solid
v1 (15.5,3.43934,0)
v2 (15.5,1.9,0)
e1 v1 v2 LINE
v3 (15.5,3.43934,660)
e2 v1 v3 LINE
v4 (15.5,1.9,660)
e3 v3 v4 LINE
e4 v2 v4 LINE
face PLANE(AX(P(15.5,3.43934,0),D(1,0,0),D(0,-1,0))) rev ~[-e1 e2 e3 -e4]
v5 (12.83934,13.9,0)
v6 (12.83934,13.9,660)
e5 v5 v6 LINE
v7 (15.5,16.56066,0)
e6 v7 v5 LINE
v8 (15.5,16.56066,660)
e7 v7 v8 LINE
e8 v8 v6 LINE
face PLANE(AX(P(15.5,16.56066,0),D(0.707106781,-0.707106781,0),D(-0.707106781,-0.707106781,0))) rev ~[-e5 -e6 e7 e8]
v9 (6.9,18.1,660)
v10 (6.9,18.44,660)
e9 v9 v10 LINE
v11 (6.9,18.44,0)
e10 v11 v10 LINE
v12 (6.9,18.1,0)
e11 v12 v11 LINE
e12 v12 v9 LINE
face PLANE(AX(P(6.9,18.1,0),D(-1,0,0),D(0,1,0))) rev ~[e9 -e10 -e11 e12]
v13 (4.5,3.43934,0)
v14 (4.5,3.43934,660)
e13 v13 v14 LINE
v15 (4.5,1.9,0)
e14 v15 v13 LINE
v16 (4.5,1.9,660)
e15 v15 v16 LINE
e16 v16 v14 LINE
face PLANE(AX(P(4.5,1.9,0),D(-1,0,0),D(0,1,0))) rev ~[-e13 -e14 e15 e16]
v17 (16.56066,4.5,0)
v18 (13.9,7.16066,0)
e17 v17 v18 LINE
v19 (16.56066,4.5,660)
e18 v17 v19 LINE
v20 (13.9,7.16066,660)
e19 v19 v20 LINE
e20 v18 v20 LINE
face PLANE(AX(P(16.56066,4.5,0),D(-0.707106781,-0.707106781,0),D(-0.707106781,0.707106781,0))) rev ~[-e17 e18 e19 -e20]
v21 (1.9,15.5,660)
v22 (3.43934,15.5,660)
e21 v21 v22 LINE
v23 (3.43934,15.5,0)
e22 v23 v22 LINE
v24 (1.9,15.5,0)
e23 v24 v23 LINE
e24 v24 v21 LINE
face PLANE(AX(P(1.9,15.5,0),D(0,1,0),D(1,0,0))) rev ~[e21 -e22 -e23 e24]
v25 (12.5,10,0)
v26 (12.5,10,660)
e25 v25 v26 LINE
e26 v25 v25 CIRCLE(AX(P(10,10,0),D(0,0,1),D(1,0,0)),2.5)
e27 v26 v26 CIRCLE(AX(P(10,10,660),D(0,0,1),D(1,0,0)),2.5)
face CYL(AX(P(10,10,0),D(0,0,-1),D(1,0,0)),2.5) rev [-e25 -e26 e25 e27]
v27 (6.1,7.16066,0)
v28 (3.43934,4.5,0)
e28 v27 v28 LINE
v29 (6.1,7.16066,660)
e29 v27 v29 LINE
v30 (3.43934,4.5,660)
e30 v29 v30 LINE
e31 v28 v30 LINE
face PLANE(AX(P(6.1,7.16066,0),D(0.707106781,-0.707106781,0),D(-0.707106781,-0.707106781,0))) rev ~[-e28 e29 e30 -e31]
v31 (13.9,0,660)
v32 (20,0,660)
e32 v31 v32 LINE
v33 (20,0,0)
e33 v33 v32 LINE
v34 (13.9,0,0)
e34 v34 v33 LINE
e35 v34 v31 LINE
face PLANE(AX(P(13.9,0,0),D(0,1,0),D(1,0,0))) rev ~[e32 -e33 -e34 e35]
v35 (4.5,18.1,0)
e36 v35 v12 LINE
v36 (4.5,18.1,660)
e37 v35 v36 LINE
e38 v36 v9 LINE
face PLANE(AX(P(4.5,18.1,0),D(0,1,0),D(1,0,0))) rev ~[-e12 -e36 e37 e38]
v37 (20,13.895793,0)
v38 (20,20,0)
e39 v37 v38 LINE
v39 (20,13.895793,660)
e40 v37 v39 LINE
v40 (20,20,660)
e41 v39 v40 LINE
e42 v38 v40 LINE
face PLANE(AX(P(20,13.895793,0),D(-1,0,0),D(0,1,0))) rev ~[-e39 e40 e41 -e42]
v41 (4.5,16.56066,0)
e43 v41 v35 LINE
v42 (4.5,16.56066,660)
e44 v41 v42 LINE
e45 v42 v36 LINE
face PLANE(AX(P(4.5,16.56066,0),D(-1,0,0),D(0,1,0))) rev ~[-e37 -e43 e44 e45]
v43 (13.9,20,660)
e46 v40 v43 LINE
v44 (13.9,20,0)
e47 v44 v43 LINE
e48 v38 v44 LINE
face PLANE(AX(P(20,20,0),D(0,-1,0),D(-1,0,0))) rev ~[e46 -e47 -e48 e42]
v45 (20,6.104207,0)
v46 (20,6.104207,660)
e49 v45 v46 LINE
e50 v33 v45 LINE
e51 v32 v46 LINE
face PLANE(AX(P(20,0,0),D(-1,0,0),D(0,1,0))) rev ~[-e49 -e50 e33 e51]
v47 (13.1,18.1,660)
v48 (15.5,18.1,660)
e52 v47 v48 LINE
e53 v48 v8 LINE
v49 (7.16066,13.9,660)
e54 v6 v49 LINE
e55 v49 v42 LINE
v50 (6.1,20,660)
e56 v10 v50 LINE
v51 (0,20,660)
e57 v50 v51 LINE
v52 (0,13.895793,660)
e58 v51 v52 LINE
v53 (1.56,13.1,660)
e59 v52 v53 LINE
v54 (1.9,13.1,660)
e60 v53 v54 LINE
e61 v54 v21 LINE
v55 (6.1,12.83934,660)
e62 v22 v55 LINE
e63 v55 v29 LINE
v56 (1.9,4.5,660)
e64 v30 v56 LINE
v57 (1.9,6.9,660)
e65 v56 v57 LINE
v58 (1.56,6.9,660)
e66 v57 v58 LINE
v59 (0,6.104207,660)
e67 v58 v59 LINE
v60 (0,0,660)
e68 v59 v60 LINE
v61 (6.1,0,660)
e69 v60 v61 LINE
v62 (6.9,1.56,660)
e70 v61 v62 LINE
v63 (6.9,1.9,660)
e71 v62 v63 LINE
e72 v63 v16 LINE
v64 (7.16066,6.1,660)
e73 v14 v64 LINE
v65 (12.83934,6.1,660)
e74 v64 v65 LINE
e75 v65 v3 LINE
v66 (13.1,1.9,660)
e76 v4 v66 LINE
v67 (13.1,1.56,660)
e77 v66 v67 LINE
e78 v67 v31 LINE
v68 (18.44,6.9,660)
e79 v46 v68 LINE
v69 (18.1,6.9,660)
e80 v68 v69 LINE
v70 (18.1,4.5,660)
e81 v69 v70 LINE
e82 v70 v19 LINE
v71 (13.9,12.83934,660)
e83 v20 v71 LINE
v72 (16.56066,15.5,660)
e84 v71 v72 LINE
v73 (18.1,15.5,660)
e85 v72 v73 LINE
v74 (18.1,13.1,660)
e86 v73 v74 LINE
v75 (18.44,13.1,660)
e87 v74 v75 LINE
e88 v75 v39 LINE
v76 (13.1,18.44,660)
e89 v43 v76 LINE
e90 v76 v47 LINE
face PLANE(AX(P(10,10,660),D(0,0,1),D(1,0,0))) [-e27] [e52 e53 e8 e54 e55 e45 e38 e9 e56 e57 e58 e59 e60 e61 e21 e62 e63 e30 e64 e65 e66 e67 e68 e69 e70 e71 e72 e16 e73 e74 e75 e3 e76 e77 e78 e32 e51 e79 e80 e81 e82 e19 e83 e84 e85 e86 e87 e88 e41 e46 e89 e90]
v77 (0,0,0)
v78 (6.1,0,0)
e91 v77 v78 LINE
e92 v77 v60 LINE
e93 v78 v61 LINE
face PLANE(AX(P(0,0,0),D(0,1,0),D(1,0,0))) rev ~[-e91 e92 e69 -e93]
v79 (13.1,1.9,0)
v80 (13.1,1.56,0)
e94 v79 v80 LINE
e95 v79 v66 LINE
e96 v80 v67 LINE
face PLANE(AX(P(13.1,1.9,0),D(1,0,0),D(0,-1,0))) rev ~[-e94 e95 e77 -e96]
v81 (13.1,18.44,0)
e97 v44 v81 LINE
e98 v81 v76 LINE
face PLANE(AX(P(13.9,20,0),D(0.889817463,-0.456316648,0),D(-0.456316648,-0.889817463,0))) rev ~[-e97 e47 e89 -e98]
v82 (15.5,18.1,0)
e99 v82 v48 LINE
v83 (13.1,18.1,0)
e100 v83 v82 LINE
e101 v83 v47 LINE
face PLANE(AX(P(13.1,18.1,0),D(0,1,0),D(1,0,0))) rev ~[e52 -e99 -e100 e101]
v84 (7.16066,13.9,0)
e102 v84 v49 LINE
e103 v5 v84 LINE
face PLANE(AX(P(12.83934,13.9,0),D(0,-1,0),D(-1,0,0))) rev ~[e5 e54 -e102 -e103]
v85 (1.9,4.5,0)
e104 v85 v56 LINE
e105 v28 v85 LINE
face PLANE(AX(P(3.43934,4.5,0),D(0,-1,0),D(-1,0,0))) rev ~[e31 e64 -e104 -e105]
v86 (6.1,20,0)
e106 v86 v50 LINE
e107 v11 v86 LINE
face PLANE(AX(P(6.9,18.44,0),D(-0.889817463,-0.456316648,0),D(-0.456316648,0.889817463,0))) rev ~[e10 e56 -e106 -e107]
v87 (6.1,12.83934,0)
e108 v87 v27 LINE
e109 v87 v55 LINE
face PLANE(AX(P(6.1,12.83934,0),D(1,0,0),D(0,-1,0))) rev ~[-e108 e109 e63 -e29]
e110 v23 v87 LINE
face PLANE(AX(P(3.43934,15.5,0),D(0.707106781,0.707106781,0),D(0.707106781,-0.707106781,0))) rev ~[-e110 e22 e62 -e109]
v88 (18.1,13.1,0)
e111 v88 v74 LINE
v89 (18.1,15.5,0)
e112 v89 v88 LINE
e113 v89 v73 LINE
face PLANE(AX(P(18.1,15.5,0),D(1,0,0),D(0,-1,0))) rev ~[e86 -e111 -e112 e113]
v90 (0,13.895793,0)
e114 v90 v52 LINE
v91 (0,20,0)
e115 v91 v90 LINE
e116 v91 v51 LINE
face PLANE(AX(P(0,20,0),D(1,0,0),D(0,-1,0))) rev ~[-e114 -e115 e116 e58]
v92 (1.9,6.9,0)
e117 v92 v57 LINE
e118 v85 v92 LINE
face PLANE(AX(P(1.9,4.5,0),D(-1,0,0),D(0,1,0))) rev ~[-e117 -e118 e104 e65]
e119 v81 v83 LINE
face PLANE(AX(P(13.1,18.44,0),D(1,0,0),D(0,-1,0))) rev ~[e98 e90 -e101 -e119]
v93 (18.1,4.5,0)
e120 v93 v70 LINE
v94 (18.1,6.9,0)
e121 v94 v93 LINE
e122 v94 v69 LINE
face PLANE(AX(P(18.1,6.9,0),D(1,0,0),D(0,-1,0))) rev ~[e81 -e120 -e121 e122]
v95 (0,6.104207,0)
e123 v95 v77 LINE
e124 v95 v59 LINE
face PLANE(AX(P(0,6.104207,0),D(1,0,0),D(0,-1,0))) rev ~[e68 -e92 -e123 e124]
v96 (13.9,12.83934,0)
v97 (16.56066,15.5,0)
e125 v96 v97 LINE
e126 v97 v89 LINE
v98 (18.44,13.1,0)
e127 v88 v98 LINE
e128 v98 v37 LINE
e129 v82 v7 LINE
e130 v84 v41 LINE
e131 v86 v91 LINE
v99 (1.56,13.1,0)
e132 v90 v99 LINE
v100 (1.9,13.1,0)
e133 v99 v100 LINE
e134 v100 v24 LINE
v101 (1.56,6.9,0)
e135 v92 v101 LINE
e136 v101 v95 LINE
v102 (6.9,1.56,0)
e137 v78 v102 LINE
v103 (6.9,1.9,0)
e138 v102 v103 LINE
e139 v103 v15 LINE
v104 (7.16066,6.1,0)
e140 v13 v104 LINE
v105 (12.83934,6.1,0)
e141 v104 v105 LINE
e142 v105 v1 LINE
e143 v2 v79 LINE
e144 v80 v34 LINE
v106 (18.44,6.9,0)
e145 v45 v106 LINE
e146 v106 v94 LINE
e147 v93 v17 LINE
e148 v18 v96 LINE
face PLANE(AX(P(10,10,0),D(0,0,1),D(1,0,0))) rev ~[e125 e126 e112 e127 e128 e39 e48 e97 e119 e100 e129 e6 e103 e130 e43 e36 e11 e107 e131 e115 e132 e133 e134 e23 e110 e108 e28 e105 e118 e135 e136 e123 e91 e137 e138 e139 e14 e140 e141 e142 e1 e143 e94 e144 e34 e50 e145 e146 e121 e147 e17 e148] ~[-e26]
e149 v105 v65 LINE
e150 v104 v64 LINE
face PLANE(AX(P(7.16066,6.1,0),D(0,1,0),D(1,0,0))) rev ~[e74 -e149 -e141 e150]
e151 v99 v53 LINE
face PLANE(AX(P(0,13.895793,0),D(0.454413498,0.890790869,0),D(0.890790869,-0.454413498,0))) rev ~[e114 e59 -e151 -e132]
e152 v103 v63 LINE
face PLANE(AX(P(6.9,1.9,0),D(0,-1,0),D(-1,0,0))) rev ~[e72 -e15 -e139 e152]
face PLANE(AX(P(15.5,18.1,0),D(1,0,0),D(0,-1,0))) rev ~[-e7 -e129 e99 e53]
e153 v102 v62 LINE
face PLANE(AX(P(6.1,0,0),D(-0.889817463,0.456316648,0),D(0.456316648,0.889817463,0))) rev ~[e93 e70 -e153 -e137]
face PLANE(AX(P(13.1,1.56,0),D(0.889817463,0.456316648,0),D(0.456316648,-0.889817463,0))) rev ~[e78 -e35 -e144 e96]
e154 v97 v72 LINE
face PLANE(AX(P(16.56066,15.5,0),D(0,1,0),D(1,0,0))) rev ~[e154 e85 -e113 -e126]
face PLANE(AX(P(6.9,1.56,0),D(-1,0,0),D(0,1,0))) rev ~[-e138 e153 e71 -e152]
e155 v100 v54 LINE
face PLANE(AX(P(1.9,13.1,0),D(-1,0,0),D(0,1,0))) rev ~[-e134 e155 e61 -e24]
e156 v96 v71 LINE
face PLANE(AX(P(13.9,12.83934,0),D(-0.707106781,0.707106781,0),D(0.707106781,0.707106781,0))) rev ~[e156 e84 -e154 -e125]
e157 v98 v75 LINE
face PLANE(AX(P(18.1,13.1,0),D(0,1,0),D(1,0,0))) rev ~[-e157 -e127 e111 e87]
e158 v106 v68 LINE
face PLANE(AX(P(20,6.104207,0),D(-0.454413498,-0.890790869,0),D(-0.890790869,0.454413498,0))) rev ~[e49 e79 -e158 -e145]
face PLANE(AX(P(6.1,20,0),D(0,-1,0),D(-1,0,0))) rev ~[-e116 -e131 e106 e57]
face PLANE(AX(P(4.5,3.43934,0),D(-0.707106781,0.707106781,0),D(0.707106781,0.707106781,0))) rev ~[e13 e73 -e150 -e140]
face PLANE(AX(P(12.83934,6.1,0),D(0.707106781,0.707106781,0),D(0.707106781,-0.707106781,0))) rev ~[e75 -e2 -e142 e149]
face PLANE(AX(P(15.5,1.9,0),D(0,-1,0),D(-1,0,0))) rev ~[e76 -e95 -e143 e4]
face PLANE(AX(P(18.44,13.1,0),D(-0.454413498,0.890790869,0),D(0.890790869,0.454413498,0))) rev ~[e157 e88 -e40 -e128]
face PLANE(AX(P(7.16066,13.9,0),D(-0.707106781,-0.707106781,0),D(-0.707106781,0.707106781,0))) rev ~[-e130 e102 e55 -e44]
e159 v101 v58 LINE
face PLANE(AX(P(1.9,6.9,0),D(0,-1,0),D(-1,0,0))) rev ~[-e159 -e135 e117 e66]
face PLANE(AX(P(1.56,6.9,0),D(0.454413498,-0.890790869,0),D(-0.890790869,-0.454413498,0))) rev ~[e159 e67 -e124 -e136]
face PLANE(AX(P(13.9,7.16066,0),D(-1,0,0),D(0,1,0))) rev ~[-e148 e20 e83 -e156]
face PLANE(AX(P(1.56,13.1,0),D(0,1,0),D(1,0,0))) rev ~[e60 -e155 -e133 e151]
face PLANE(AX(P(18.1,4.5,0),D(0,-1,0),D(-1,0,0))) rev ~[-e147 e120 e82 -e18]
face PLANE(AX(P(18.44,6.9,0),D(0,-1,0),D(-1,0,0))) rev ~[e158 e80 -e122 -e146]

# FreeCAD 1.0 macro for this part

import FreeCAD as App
import Part
import Sketcher

V = App.Vector


def add_polygon(sketch, points):
    """Adds a closed chain of lines whose ends are joined by coincident constraints."""
    first, n = sketch.GeometryCount, len(points)
    for a, b in zip(points, points[1:] + points[:1]):
        sketch.addGeometry(Part.LineSegment(App.Vector(*a, 0), App.Vector(*b, 0)), False)
    for i in range(n):
        sketch.addConstraint(Sketcher.Constraint("Coincident", first + i, 2, first + (i + 1) % n, 1))

doc = App.newDocument("Part")
body = doc.addObject("PartDesign::Body", "Body")

sketch1 = doc.addObject("Sketcher::SketchObject", "Sketch")
body.addObject(sketch1)
sketch1.AttachmentSupport = (doc.XY_Plane, [""])
sketch1.MapMode = "FlatFace"
add_polygon(sketch1, [(6.1, 20), (0, 20), (0, 13.895793), (1.56, 13.1), (1.9, 13.1), (1.9, 15.5), (3.43934, 15.5), (6.1, 12.83934), (6.1, 7.16066), (3.43934, 4.5), (1.9, 4.5), (1.9, 6.9), (1.56, 6.9), (0, 6.104207), (0, 0), (6.1, 0), (6.9, 1.56), (6.9, 1.9), (4.5, 1.9), (4.5, 3.43934), (7.16066, 6.1), (12.83934, 6.1), (15.5, 3.43934), (15.5, 1.9), (13.1, 1.9), (13.1, 1.56), (13.9, 0), (20, 0), (20, 6.104207), (18.44, 6.9), (18.1, 6.9), (18.1, 4.5), (16.56066, 4.5), (13.9, 7.16066), (13.9, 12.83934), (16.56066, 15.5), (18.1, 15.5), (18.1, 13.1), (18.44, 13.1), (20, 13.895793), (20, 20), (13.9, 20), (13.1, 18.44), (13.1, 18.1), (15.5, 18.1), (15.5, 16.56066), (12.83934, 13.9), (7.16066, 13.9), (4.5, 16.56066), (4.5, 18.1), (6.9, 18.1), (6.9, 18.44)])
sketch1.addGeometry(Part.Circle(V(10, 10, 0), V(0, 0, 1), 2.5), False)
sketch1.addConstraint(Sketcher.Constraint("Horizontal", 0))
sketch1.addConstraint(Sketcher.Constraint("Vertical", 1))
sketch1.addConstraint(Sketcher.Constraint("Horizontal", 3))
sketch1.addConstraint(Sketcher.Constraint("Vertical", 4))
sketch1.addConstraint(Sketcher.Constraint("Horizontal", 5))
sketch1.addConstraint(Sketcher.Constraint("Vertical", 7))
sketch1.addConstraint(Sketcher.Constraint("Horizontal", 9))
sketch1.addConstraint(Sketcher.Constraint("Vertical", 10))
sketch1.addConstraint(Sketcher.Constraint("Horizontal", 11))
sketch1.addConstraint(Sketcher.Constraint("Vertical", 13))
sketch1.addConstraint(Sketcher.Constraint("Horizontal", 14))
sketch1.addConstraint(Sketcher.Constraint("Vertical", 16))
sketch1.addConstraint(Sketcher.Constraint("Horizontal", 17))
sketch1.addConstraint(Sketcher.Constraint("Vertical", 18))
sketch1.addConstraint(Sketcher.Constraint("Horizontal", 20))
sketch1.addConstraint(Sketcher.Constraint("Vertical", 22))
sketch1.addConstraint(Sketcher.Constraint("Horizontal", 23))
sketch1.addConstraint(Sketcher.Constraint("Vertical", 24))
sketch1.addConstraint(Sketcher.Constraint("Horizontal", 26))
sketch1.addConstraint(Sketcher.Constraint("Vertical", 27))
sketch1.addConstraint(Sketcher.Constraint("Horizontal", 29))
sketch1.addConstraint(Sketcher.Constraint("Vertical", 30))
sketch1.addConstraint(Sketcher.Constraint("Horizontal", 31))
sketch1.addConstraint(Sketcher.Constraint("Vertical", 33))
sketch1.addConstraint(Sketcher.Constraint("Horizontal", 35))
sketch1.addConstraint(Sketcher.Constraint("Vertical", 36))
sketch1.addConstraint(Sketcher.Constraint("Horizontal", 37))
sketch1.addConstraint(Sketcher.Constraint("Vertical", 39))
sketch1.addConstraint(Sketcher.Constraint("Horizontal", 40))
sketch1.addConstraint(Sketcher.Constraint("Vertical", 42))
sketch1.addConstraint(Sketcher.Constraint("Horizontal", 43))
sketch1.addConstraint(Sketcher.Constraint("Vertical", 44))
sketch1.addConstraint(Sketcher.Constraint("Horizontal", 46))
sketch1.addConstraint(Sketcher.Constraint("Vertical", 48))
sketch1.addConstraint(Sketcher.Constraint("Horizontal", 49))
sketch1.addConstraint(Sketcher.Constraint("Vertical", 50))
sketch1.addConstraint(Sketcher.Constraint("Coincident", 13, 2, -1, 1))
sketch1.addConstraint(Sketcher.Constraint("PointOnObject", 0, 2, -2))
sketch1.addConstraint(Sketcher.Constraint("PointOnObject", 25, 2, -1))
sketch1.addConstraint(Sketcher.Constraint("Perpendicular", 6, 8))
sketch1.addConstraint(Sketcher.Constraint("Parallel", 8, 19))
sketch1.addConstraint(Sketcher.Constraint("Perpendicular", 19, 21))
sketch1.addConstraint(Sketcher.Constraint("Parallel", 2, 28))
sketch1.addConstraint(Sketcher.Constraint("Parallel", 21, 32))
sketch1.addConstraint(Sketcher.Constraint("Perpendicular", 32, 34))
sketch1.addConstraint(Sketcher.Constraint("Parallel", 12, 38))
sketch1.addConstraint(Sketcher.Constraint("Parallel", 15, 41))
sketch1.addConstraint(Sketcher.Constraint("Parallel", 34, 45))
sketch1.addConstraint(Sketcher.Constraint("Perpendicular", 45, 47))
sketch1.addConstraint(Sketcher.Constraint("Parallel", 25, 51))
sketch1.addConstraint(Sketcher.Constraint("Horizontal", 18, 2, 21, 2))
sketch1.addConstraint(Sketcher.Constraint("Horizontal", 17, 2, 22, 2))
sketch1.addConstraint(Sketcher.Constraint("Horizontal", 15, 2, 24, 2))
sketch1.addConstraint(Sketcher.Constraint("Horizontal", 12, 2, 27, 2))
sketch1.addConstraint(Sketcher.Constraint("Horizontal", 11, 2, 28, 2))
sketch1.addConstraint(Sketcher.Constraint("Horizontal", 9, 2, 30, 2))
sketch1.addConstraint(Sketcher.Constraint("Horizontal", 7, 2, 32, 2))
sketch1.addConstraint(Sketcher.Constraint("Horizontal", 6, 2, 33, 2))
sketch1.addConstraint(Sketcher.Constraint("Horizontal", 5, 2, 34, 2))
sketch1.addConstraint(Sketcher.Constraint("Horizontal", 3, 2, 36, 2))
sketch1.addConstraint(Sketcher.Constraint("Horizontal", 1, 2, 38, 2))
sketch1.addConstraint(Sketcher.Constraint("Horizontal", 0, 2, 39, 2))
sketch1.addConstraint(Sketcher.Constraint("Horizontal", 44, 2, 47, 2))
sketch1.addConstraint(Sketcher.Constraint("Horizontal", 43, 2, 48, 2))
sketch1.addConstraint(Sketcher.Constraint("Horizontal", 41, 2, 50, 2))
sketch1.addConstraint(Sketcher.Constraint("Vertical", 5, 2, 8, 2))
sketch1.addConstraint(Sketcher.Constraint("Vertical", 4, 2, 9, 2))
sketch1.addConstraint(Sketcher.Constraint("Vertical", 2, 2, 11, 2))
sketch1.addConstraint(Sketcher.Constraint("Vertical", 7, 2, 14, 2))
sketch1.addConstraint(Sketcher.Constraint("Vertical", 25, 2, 32, 2))
sketch1.addConstraint(Sketcher.Constraint("Vertical", 31, 2, 34, 2))
sketch1.addConstraint(Sketcher.Constraint("Vertical", 30, 2, 35, 2))
sketch1.addConstraint(Sketcher.Constraint("Vertical", 28, 2, 37, 2))
sketch1.addConstraint(Sketcher.Constraint("Vertical", 27, 2, 38, 2))
sketch1.addConstraint(Sketcher.Constraint("Vertical", 33, 2, 40, 2))
sketch1.addConstraint(Sketcher.Constraint("Vertical", 24, 2, 41, 2))
sketch1.addConstraint(Sketcher.Constraint("Vertical", 22, 2, 43, 2))
sketch1.addConstraint(Sketcher.Constraint("Vertical", 20, 2, 45, 2))
sketch1.addConstraint(Sketcher.Constraint("Vertical", 19, 2, 46, 2))
sketch1.addConstraint(Sketcher.Constraint("Vertical", 16, 2, 49, 2))
sketch1.addConstraint(Sketcher.Constraint("Vertical", 14, 2, 51, 2))
sketch1.addConstraint(Sketcher.Constraint("Equal", 17, 23))
sketch1.addConstraint(Sketcher.Constraint("Equal", 14, 26))
sketch1.addConstraint(Sketcher.Constraint("Equal", 11, 29))
sketch1.addConstraint(Sketcher.Constraint("Equal", 49, 4))
sketch1.addConstraint(Sketcher.Constraint("Equal", 46, 7))
sketch1.addConstraint(Sketcher.Constraint("Equal", 4, 10))
sketch1.addConstraint(Sketcher.Constraint("Equal", 1, 13))
sketch1.addConstraint(Sketcher.Constraint("Equal", 37, 16))
sketch1.addConstraint(Sketcher.Constraint("Equal", 35, 18))
sketch1.addConstraint(Sketcher.Constraint("Equal", 24, 42))
sketch1.addConstraint(Sketcher.Constraint("Equal", 22, 44))
sketch1.addConstraint(Sketcher.Constraint("Equal", 8, 19))
sketch1.addConstraint(Sketcher.Constraint("Diameter", 52, 5.0))
sketch1.addConstraint(Sketcher.Constraint("DistanceX", 0, 2, 0, 1, 6.1))
sketch1.addConstraint(Sketcher.Constraint("DistanceX", 17, 2, 17, 1, 2.4))
sketch1.addConstraint(Sketcher.Constraint("DistanceX", -1, 1, 52, 3, 10.0))
sketch1.addConstraint(Sketcher.Constraint("DistanceY", -1, 1, 52, 3, 10.0))
sketch1.addConstraint(Sketcher.Constraint("DistanceY", -1, 1, 0, 2, 20.0))
sketch1.addConstraint(Sketcher.Constraint("DistanceX", -1, 1, 26, 2, 20.0))
sketch1.addConstraint(Sketcher.Constraint("DistanceX", 9, 2, 15, 2, 5.0))
sketch1.addConstraint(Sketcher.Constraint("DistanceY", 22, 2, 28, 2, 5.0))
sketch1.addConstraint(Sketcher.Constraint("DistanceX", 3, 1, 3, 2, 0.34))
sketch1.addConstraint(Sketcher.Constraint("DistanceY", -1, 1, 2, 2, 13.1))
sketch1.addConstraint(Sketcher.Constraint("DistanceX", 5, 1, 5, 2, 1.53934))
sketch1.addConstraint(Sketcher.Constraint("DistanceY", 1, 2, 1, 1, 6.104207))
pad1 = doc.addObject("PartDesign::Pad", "Pad")
body.addObject(pad1)
pad1.Profile = sketch1
pad1.Length = 660

doc.recompute()
